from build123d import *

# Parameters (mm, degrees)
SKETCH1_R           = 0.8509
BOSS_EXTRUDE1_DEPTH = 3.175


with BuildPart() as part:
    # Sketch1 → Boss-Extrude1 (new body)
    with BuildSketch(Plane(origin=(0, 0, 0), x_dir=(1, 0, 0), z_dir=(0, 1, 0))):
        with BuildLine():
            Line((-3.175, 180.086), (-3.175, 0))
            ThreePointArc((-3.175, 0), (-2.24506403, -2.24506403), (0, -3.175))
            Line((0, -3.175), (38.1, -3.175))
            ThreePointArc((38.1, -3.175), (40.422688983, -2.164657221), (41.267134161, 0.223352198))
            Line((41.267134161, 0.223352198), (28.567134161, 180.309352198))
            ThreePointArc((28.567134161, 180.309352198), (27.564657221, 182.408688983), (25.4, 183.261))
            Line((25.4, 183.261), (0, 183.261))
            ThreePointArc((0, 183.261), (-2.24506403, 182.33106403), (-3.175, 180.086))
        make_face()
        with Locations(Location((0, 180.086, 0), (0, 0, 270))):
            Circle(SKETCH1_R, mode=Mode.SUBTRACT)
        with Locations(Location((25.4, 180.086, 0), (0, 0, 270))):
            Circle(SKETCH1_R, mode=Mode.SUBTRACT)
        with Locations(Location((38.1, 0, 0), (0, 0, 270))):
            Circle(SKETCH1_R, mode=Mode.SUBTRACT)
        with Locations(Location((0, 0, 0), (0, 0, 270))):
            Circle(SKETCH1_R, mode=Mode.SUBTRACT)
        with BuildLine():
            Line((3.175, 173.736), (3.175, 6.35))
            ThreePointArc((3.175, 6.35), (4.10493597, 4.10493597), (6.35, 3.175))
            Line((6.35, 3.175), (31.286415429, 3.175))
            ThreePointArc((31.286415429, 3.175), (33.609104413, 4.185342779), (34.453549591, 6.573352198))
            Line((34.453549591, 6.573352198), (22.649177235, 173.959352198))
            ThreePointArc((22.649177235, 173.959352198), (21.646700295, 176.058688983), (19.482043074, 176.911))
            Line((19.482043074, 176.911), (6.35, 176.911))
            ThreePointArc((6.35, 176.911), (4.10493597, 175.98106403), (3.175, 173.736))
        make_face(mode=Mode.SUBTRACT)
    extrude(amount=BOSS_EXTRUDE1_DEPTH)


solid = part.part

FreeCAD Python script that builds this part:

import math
import FreeCAD as App
import Part
import Sketcher
Q = App.Units.Quantity

doc = App.newDocument("Part")
params = doc.addObject("Spreadsheet::Sheet", "Params")
for row, (alias, value) in enumerate([
    ("sketch1_width", "1 in"),
    ("sketch1_diameter", "0.067 in"),
    ("sketch1_width2", "1.5 in"),
    ("sketch1_radius", "0.125 in"),
    ("sketch1_height", "7.09 in"),
    ("pad1_length", "0.125 in"),
], start=1):
    params.set(f"A{row}", alias)
    params.set(f"B{row}", "=" + value)
    params.setAlias(f"B{row}", alias)

body = doc.addObject("PartDesign::Body", "Body")

sketch1 = body.newObject("Sketcher::SketchObject", "Sketch")
sketch1.AttachmentSupport = (doc.getObject("XZ_Plane"), [""])
sketch1.MapMode = "FlatFace"
sketch1.addGeometry([
    Part.LineSegment(App.Vector(-3.175, -180.086, 0), App.Vector(-3.175, 0, 0)),
    Part.ArcOfCircle(Part.Circle(App.Vector(0, 0, 0), App.Vector(0, 0, 1), 3.175), math.radians(90), math.radians(180)),
    Part.LineSegment(App.Vector(0, 3.175, 0), App.Vector(38.1, 3.175, 0)),
    Part.ArcOfCircle(Part.Circle(App.Vector(38.1, 0, 0), App.Vector(0, 0, 1), 3.175), math.radians(-4.033927), math.radians(90)),
    Part.LineSegment(App.Vector(41.267134, -0.223352, 0), App.Vector(28.567134, -180.309352, 0)),
    Part.ArcOfCircle(Part.Circle(App.Vector(25.4, -180.086, 0), App.Vector(0, 0, 1), 3.175), math.radians(-90), math.radians(-4.033927)),
    Part.LineSegment(App.Vector(25.4, -183.261, 0), App.Vector(0, -183.261, 0)),
    Part.ArcOfCircle(Part.Circle(App.Vector(0, -180.086, 0), App.Vector(0, 0, 1), 3.175), math.radians(-180), math.radians(-90)),
    Part.Circle(App.Vector(0, 0, 0), App.Vector(0, 0, 1), 0.8509),
    Part.Circle(App.Vector(38.1, 0, 0), App.Vector(0, 0, 1), 0.8509),
    Part.LineSegment(App.Vector(3.175, -6.35, 0), App.Vector(3.175, -173.736, 0)),
    Part.ArcOfCircle(Part.Circle(App.Vector(6.35, -173.736, 0), App.Vector(0, 0, 1), 3.175), math.radians(-180), math.radians(-90)),
    Part.LineSegment(App.Vector(6.35, -176.911, 0), App.Vector(19.482043, -176.911, 0)),
    Part.ArcOfCircle(Part.Circle(App.Vector(19.482043, -173.736, 0), App.Vector(0, 0, 1), 3.175), math.radians(-90), math.radians(-4.033927)),
    Part.LineSegment(App.Vector(22.649177, -173.959352, 0), App.Vector(34.45355, -6.573352, 0)),
    Part.ArcOfCircle(Part.Circle(App.Vector(31.286415, -6.35, 0), App.Vector(0, 0, 1), 3.175), math.radians(-4.033927), math.radians(90)),
    Part.LineSegment(App.Vector(31.286415, -3.175, 0), App.Vector(6.35, -3.175, 0)),
    Part.ArcOfCircle(Part.Circle(App.Vector(6.35, -6.35, 0), App.Vector(0, 0, 1), 3.175), math.radians(90), math.radians(180)),
    Part.Circle(App.Vector(0, -180.086, 0), App.Vector(0, 0, 1), 0.8509),
    Part.Circle(App.Vector(25.4, -180.086, 0), App.Vector(0, 0, 1), 0.8509),
], False)
sketch1.addConstraint([
    Sketcher.Constraint("Tangent", 0, 2, 1, 2),
    Sketcher.Constraint("Tangent", 1, 1, 2, 1),
    Sketcher.Constraint("Tangent", 2, 2, 3, 2),
    Sketcher.Constraint("Tangent", 3, 1, 4, 1),
    Sketcher.Constraint("Tangent", 4, 2, 5, 2),
    Sketcher.Constraint("Tangent", 5, 1, 6, 1),
    Sketcher.Constraint("Tangent", 6, 2, 7, 2),
    Sketcher.Constraint("Tangent", 7, 1, 0, 1),
    Sketcher.Constraint("Tangent", 10, 2, 11, 1),
    Sketcher.Constraint("Tangent", 11, 2, 12, 1),
    Sketcher.Constraint("Tangent", 12, 2, 13, 1),
    Sketcher.Constraint("Tangent", 13, 2, 14, 1),
    Sketcher.Constraint("Tangent", 14, 2, 15, 1),
    Sketcher.Constraint("Tangent", 15, 2, 16, 1),
    Sketcher.Constraint("Tangent", 16, 2, 17, 1),
    Sketcher.Constraint("Tangent", 17, 2, 10, 1),
    Sketcher.Constraint("Vertical", 0),
    Sketcher.Constraint("Horizontal", 2),
    Sketcher.Constraint("Horizontal", 6),
    Sketcher.Constraint("Vertical", 10),
    Sketcher.Constraint("Horizontal", 12),
    Sketcher.Constraint("Horizontal", 16),
    Sketcher.Constraint("Coincident", 1, 3, -1, 1),
    Sketcher.Constraint("Coincident", 8, 3, -1, 1),
    Sketcher.Constraint("Coincident", 9, 3, 3, 3),
    Sketcher.Constraint("Coincident", 18, 3, 7, 3),
    Sketcher.Constraint("Coincident", 19, 3, 5, 3),
    Sketcher.Constraint("Equal", 1, 3),
    Sketcher.Constraint("Equal", 3, 5),
    Sketcher.Constraint("Equal", 5, 7),
    Sketcher.Constraint("Equal", 8, 9),
    Sketcher.Constraint("Equal", 7, 11),
    Sketcher.Constraint("Equal", 11, 13),
    Sketcher.Constraint("Equal", 13, 15),
    Sketcher.Constraint("Equal", 15, 17),
    Sketcher.Constraint("Equal", 9, 18),
    Sketcher.Constraint("Equal", 18, 19),
    Sketcher.Constraint("Parallel", 4, 14),
    Sketcher.Constraint("DistanceX", 6, 2, 6, 1, Q("1 in")),
    Sketcher.Constraint("Diameter", 8, Q("0.067 in")),
    Sketcher.Constraint("DistanceX", 2, 1, 2, 2, Q("1.5 in")),
    Sketcher.Constraint("Radius", 1, Q("0.125 in")),
    Sketcher.Constraint("DistanceY", 0, 1, 0, 2, Q("7.09 in")),
    Sketcher.Constraint("DistanceY", 10, 2, 10, 1, Q("6.59 in")),
    Sketcher.Constraint("DistanceX", -1, 1, 11, 3, Q("0.25 in")),
    Sketcher.Constraint("DistanceY", 11, 3, -1, 1, Q("6.84 in")),
    Sketcher.Constraint("DistanceX", -1, 1, 13, 2, Q("0.8916999 in")),
])
sketch1.setExpression("Constraints[38]", "Params.sketch1_width")
sketch1.setExpression("Constraints[39]", "Params.sketch1_diameter")
sketch1.setExpression("Constraints[40]", "Params.sketch1_width2")
sketch1.setExpression("Constraints[41]", "Params.sketch1_radius")
sketch1.setExpression("Constraints[42]", "Params.sketch1_height")
pad1 = body.newObject("PartDesign::Pad", "Pad")
pad1.Profile = sketch1
pad1.setExpression("Length", "Params.pad1_length")
pad1.Reversed = True

doc.recompute()
